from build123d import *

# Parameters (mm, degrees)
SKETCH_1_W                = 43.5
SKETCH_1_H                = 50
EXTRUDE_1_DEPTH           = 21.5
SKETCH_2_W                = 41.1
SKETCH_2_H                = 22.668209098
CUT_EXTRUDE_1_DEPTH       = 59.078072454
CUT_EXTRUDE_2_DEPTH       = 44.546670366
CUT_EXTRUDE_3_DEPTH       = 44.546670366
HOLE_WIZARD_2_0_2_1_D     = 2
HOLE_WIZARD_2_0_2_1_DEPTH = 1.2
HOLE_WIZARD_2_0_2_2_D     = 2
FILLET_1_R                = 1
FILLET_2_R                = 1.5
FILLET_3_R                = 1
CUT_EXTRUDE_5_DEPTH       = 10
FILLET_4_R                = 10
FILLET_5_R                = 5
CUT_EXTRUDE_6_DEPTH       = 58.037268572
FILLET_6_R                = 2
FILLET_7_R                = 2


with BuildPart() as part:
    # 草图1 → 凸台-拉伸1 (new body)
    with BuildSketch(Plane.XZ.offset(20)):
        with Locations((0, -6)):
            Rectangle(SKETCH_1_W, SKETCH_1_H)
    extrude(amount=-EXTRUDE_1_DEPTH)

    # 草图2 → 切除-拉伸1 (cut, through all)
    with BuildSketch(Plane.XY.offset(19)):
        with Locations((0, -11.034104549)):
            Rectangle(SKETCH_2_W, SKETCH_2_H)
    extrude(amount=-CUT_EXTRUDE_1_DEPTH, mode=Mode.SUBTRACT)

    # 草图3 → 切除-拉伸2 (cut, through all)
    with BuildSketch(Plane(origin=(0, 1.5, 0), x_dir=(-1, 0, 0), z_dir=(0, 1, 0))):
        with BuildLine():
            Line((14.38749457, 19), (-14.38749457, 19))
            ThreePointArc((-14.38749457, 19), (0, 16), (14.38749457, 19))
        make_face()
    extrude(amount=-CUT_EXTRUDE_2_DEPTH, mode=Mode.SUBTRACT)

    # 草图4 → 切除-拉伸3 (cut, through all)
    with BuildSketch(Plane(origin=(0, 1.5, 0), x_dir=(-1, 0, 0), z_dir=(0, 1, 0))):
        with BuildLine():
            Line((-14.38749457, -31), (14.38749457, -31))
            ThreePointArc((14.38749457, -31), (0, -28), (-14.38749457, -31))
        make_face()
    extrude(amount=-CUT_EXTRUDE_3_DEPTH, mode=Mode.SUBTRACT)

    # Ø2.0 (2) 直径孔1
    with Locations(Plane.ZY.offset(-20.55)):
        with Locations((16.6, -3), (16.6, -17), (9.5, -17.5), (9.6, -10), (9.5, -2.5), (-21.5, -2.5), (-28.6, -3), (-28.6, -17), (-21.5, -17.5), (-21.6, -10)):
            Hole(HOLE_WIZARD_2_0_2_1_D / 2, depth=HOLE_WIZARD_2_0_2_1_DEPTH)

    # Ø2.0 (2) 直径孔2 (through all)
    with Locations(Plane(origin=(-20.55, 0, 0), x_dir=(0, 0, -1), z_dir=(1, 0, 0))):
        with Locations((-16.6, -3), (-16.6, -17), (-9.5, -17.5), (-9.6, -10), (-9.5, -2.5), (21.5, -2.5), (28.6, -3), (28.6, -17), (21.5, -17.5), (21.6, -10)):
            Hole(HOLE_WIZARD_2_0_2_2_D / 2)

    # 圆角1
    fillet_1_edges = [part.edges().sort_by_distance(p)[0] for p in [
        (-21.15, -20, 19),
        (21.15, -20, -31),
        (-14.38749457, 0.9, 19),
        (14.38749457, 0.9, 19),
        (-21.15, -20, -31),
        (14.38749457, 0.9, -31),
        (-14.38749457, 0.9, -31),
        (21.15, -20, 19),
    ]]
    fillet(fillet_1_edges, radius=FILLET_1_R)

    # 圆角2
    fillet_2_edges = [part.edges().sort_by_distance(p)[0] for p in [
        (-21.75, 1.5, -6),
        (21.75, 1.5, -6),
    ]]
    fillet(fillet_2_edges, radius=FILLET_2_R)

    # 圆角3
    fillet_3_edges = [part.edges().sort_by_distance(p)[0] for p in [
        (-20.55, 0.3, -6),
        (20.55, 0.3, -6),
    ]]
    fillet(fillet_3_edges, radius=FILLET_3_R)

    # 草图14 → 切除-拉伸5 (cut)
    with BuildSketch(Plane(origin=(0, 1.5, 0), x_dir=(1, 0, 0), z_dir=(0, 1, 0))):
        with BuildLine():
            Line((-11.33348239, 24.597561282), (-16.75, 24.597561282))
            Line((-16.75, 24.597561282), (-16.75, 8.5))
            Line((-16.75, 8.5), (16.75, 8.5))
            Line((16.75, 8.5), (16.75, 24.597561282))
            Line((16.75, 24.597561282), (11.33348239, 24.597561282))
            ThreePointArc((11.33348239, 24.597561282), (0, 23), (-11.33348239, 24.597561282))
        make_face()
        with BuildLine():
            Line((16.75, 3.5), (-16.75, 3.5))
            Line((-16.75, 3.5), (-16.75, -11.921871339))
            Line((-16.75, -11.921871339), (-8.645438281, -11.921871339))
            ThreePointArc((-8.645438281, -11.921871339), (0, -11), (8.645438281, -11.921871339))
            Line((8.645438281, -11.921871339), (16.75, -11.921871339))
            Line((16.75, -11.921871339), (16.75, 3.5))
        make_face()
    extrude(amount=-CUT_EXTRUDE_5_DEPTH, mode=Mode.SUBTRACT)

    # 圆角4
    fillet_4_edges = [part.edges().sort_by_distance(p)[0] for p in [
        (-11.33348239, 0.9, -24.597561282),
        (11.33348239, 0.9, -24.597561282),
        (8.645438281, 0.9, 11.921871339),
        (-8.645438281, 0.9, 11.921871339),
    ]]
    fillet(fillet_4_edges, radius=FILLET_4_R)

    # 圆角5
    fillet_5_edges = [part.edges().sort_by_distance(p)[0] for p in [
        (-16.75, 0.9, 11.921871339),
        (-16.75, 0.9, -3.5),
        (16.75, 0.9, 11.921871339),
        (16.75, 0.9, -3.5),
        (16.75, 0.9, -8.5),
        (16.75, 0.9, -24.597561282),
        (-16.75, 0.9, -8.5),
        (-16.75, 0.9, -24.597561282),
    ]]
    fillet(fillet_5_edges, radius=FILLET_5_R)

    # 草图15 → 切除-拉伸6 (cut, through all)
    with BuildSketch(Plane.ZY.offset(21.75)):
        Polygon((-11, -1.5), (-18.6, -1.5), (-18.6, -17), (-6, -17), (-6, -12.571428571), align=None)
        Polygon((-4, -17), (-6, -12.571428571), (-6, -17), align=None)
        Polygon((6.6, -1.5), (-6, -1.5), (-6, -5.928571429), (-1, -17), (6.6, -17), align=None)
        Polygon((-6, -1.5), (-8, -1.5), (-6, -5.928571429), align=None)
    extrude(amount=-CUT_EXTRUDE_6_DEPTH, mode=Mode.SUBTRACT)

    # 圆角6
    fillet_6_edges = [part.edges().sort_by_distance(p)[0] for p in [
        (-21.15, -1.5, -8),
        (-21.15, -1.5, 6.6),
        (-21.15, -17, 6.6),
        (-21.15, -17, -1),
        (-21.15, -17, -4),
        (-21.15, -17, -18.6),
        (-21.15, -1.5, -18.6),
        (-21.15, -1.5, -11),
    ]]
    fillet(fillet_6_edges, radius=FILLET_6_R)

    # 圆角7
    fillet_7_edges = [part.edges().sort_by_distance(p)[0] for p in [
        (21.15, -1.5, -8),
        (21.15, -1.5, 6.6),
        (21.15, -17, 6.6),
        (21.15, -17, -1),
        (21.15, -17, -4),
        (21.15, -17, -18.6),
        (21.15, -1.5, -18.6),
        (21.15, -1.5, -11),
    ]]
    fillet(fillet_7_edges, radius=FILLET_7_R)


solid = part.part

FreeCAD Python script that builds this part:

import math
import FreeCAD as App
import Part
import Sketcher

V = App.Vector


def edges_at(feature, points):
    """Names of the edges that pass closest to the given points."""
    edges = feature.Shape.Edges
    near = lambda p: min(range(len(edges)), key=lambda i: edges[i].distToShape(Part.Vertex(*p))[0])
    return sorted({f"Edge{near(p) + 1}" for p in points})


def add_polygon(sketch, points):
    """Adds a closed chain of lines whose ends are joined by coincident constraints."""
    first, n = sketch.GeometryCount, len(points)
    for a, b in zip(points, points[1:] + points[:1]):
        sketch.addGeometry(Part.LineSegment(App.Vector(*a, 0), App.Vector(*b, 0)), False)
    for i in range(n):
        sketch.addConstraint(Sketcher.Constraint("Coincident", first + i, 2, first + (i + 1) % n, 1))

doc = App.newDocument("Part")
body = doc.addObject("PartDesign::Body", "Body")

# Sketch on XZ plane
sketch1 = body.newObject("Sketcher::SketchObject", "Sketch")
sketch1.AttachmentSupport = (doc.getObject("XZ_Plane"), [""])
sketch1.MapMode = "FlatFace"
sketch1.AttachmentOffset = App.Placement(V(0, 0, 20), App.Rotation())
add_polygon(sketch1, [(-21.75, 19), (-21.75, -31), (21.75, -31), (21.75, 19)])  # lines 0-3
sketch1.addConstraint(Sketcher.Constraint("Vertical", 0))
sketch1.addConstraint(Sketcher.Constraint("Horizontal", 1))
sketch1.addConstraint(Sketcher.Constraint("Vertical", 2))
sketch1.addConstraint(Sketcher.Constraint("Horizontal", 3))
sketch1.addConstraint(Sketcher.Constraint("DistanceY", 0, 2, 0, 1, 50.0))
sketch1.addConstraint(Sketcher.Constraint("DistanceX", 1, 1, 1, 2, 43.5))
sketch1.addConstraint(Sketcher.Constraint("DistanceY", 0, 2, -1, 1, 31.0))
sketch1.addConstraint(Sketcher.Constraint("DistanceX", 0, 2, -1, 1, 21.75))
pad1 = body.newObject("PartDesign::Pad", "Pad")
pad1.Profile = sketch1
pad1.Length = 21.5
pad1.Reversed = True

# Sketch on XY plane
sketch2 = body.newObject("Sketcher::SketchObject", "Sketch001")
sketch2.AttachmentSupport = (doc.getObject("XY_Plane"), [""])
sketch2.MapMode = "FlatFace"
sketch2.AttachmentOffset = App.Placement(V(0, 0, 19), App.Rotation())
add_polygon(sketch2, [(-20.55, 0.3), (-20.55, -22.368209), (20.55, -22.368209), (20.55, 0.3)])  # lines 0-3
sketch2.addConstraint(Sketcher.Constraint("Vertical", 0))
sketch2.addConstraint(Sketcher.Constraint("Horizontal", 1))
sketch2.addConstraint(Sketcher.Constraint("Vertical", 2))
sketch2.addConstraint(Sketcher.Constraint("Horizontal", 3))
sketch2.addConstraint(Sketcher.Constraint("DistanceX", 1, 1, 1, 2, 41.1))
sketch2.addConstraint(Sketcher.Constraint("DistanceY", -1, 1, 2, 2, 0.3))
sketch2.addConstraint(Sketcher.Constraint("DistanceX", 0, 2, -1, 1, 20.55))
sketch2.addConstraint(Sketcher.Constraint("DistanceY", 0, 2, 0, 1, 22.668209))
pocket1 = body.newObject("PartDesign::Pocket", "Pocket")
pocket1.Profile = sketch2
pocket1.Type = "ThroughAll"

# Sketch on XZ plane
sketch3 = body.newObject("Sketcher::SketchObject", "Sketch002")
sketch3.AttachmentSupport = (doc.getObject("XZ_Plane"), [""])
sketch3.MapMode = "FlatFace"
sketch3.AttachmentOffset = App.Placement(V(0, 0, -1.5), App.Rotation())
sketch3.addGeometry(Part.LineSegment(V(-14.387495, 19, 0), V(14.387495, 19, 0)), False)
sketch3.addGeometry(Part.ArcOfCircle(Part.Circle(V(0, 52, 0), V(0, 0, 1), 36), math.radians(-113.556464), math.radians(-66.443536)), False)
sketch3.addConstraint(Sketcher.Constraint("Coincident", 0, 1, 1, 1))
sketch3.addConstraint(Sketcher.Constraint("Coincident", 1, 2, 0, 2))
sketch3.addConstraint(Sketcher.Constraint("Horizontal", 0))
sketch3.addConstraint(Sketcher.Constraint("PointOnObject", 1, 3, -2))
sketch3.addConstraint(Sketcher.Constraint("Radius", 1, 36.0))
sketch3.addConstraint(Sketcher.Constraint("DistanceY", -1, 1, 1, 3, 52.0))
sketch3.addConstraint(Sketcher.Constraint("DistanceY", -1, 1, 0, 1, 19.0))
pocket2 = body.newObject("PartDesign::Pocket", "Pocket001")
pocket2.Profile = sketch3
pocket2.Type = "ThroughAll"
pocket2.Reversed = True

# Sketch on XZ plane
sketch4 = body.newObject("Sketcher::SketchObject", "Sketch003")
sketch4.AttachmentSupport = (doc.getObject("XZ_Plane"), [""])
sketch4.MapMode = "FlatFace"
sketch4.AttachmentOffset = App.Placement(V(0, 0, -1.5), App.Rotation())
sketch4.addGeometry(Part.LineSegment(V(14.387495, -31, 0), V(-14.387495, -31, 0)), False)
sketch4.addGeometry(Part.ArcOfCircle(Part.Circle(V(0, -64, 0), V(0, 0, 1), 36), math.radians(66.443536), math.radians(113.556464)), False)
sketch4.addConstraint(Sketcher.Constraint("Coincident", 0, 1, 1, 1))
sketch4.addConstraint(Sketcher.Constraint("Coincident", 1, 2, 0, 2))
sketch4.addConstraint(Sketcher.Constraint("Horizontal", 0))
sketch4.addConstraint(Sketcher.Constraint("PointOnObject", 1, 3, -2))
sketch4.addConstraint(Sketcher.Constraint("Radius", 1, 36.0))
sketch4.addConstraint(Sketcher.Constraint("DistanceY", 1, 3, -1, 1, 64.0))
sketch4.addConstraint(Sketcher.Constraint("DistanceY", 0, 1, -1, 1, 31.0))
pocket3 = body.newObject("PartDesign::Pocket", "Pocket002")
pocket3.Profile = sketch4
pocket3.Type = "ThroughAll"
pocket3.Reversed = True

# Sketch on YZ plane
sketch5 = body.newObject("Sketcher::SketchObject", "Sketch004")
sketch5.AttachmentSupport = (doc.getObject("YZ_Plane"), [""])
sketch5.MapMode = "FlatFace"
sketch5.AttachmentOffset = App.Placement(V(0, 0, 20.55), App.Rotation())
sketch5.addGeometry(Part.Circle(V(-3, 16.6, 0), V(0, 0, 1), 1), False)
sketch5.addGeometry(Part.Circle(V(-17, 16.6, 0), V(0, 0, 1), 1), False)
sketch5.addGeometry(Part.Circle(V(-17.5, 9.5, 0), V(0, 0, 1), 1), False)
sketch5.addGeometry(Part.Circle(V(-10, 9.6, 0), V(0, 0, 1), 1), False)
sketch5.addGeometry(Part.Circle(V(-2.5, 9.5, 0), V(0, 0, 1), 1), False)
sketch5.addGeometry(Part.Circle(V(-2.5, -21.5, 0), V(0, 0, 1), 1), False)
sketch5.addGeometry(Part.Circle(V(-3, -28.6, 0), V(0, 0, 1), 1), False)
sketch5.addGeometry(Part.Circle(V(-17, -28.6, 0), V(0, 0, 1), 1), False)
sketch5.addGeometry(Part.Circle(V(-17.5, -21.5, 0), V(0, 0, 1), 1), False)
sketch5.addGeometry(Part.Circle(V(-10, -21.6, 0), V(0, 0, 1), 1), False)
sketch5.addConstraint(Sketcher.Constraint("Equal", 0, 1))
sketch5.addConstraint(Sketcher.Constraint("Equal", 1, 2))
sketch5.addConstraint(Sketcher.Constraint("Equal", 2, 3))
sketch5.addConstraint(Sketcher.Constraint("Equal", 3, 4))
sketch5.addConstraint(Sketcher.Constraint("Equal", 4, 5))
sketch5.addConstraint(Sketcher.Constraint("Equal", 5, 6))
sketch5.addConstraint(Sketcher.Constraint("Equal", 6, 7))
sketch5.addConstraint(Sketcher.Constraint("Equal", 7, 8))
sketch5.addConstraint(Sketcher.Constraint("Equal", 8, 9))
sketch5.addConstraint(Sketcher.Constraint("Horizontal", 0, 3, 1, 3))
sketch5.addConstraint(Sketcher.Constraint("Horizontal", 2, 3, 4, 3))
sketch5.addConstraint(Sketcher.Constraint("Horizontal", 6, 3, 7, 3))
sketch5.addConstraint(Sketcher.Constraint("Horizontal", 5, 3, 8, 3))
sketch5.addConstraint(Sketcher.Constraint("Vertical", 4, 3, 5, 3))
sketch5.addConstraint(Sketcher.Constraint("Vertical", 0, 3, 6, 3))
sketch5.addConstraint(Sketcher.Constraint("Vertical", 1, 3, 7, 3))
sketch5.addConstraint(Sketcher.Constraint("Vertical", 2, 3, 8, 3))
sketch5.addConstraint(Sketcher.Constraint("Vertical", 3, 3, 9, 3))
sketch5.addConstraint(Sketcher.Constraint("Diameter", 0, 2.0))
sketch5.addConstraint(Sketcher.Constraint("DistanceX", 0, 3, -1, 1, 3.0))
sketch5.addConstraint(Sketcher.Constraint("DistanceX", 1, 3, -1, 1, 17.0))
sketch5.addConstraint(Sketcher.Constraint("DistanceX", 3, 3, -1, 1, 10.0))
sketch5.addConstraint(Sketcher.Constraint("DistanceY", 3, 3, 0, 3, 7.0))
sketch5.addConstraint(Sketcher.Constraint("DistanceX", 2, 3, 4, 3, 15.0))
sketch5.addConstraint(Sketcher.Constraint("DistanceY", 5, 3, 4, 3, 31.0))
sketch5.addConstraint(Sketcher.Constraint("DistanceY", 6, 3, 9, 3, 7.0))
sketch5.addConstraint(Sketcher.Constraint("DistanceY", -1, 1, 0, 3, 16.6))
sketch5.addConstraint(Sketcher.Constraint("DistanceX", 2, 3, -1, 1, 17.5))
sketch5.addConstraint(Sketcher.Constraint("DistanceY", -1, 1, 2, 3, 9.5))
sketch5.addConstraint(Sketcher.Constraint("DistanceY", 6, 3, -1, 1, 28.6))
doc.recompute()
hole = body.newObject("PartDesign::Hole", "Hole")
hole.Profile = sketch5
hole.ThreadType = "None"
hole.Diameter = 2
hole.DepthType = "Dimension"
hole.Depth = 1.2
hole.DrillPoint = "Flat"
hole.Reversed = True

# Sketch on YZ plane
sketch6 = body.newObject("Sketcher::SketchObject", "Sketch005")
sketch6.AttachmentSupport = (doc.getObject("YZ_Plane"), [""])
sketch6.MapMode = "FlatFace"
sketch6.AttachmentOffset = App.Placement(V(0, 0, -20.55), App.Rotation())
sketch6.addGeometry(Part.Circle(V(-3, 16.6, 0), V(0, 0, 1), 1), False)
sketch6.addGeometry(Part.Circle(V(-17, 16.6, 0), V(0, 0, 1), 1), False)
sketch6.addGeometry(Part.Circle(V(-17.5, 9.5, 0), V(0, 0, 1), 1), False)
sketch6.addGeometry(Part.Circle(V(-10, 9.6, 0), V(0, 0, 1), 1), False)
sketch6.addGeometry(Part.Circle(V(-2.5, 9.5, 0), V(0, 0, 1), 1), False)
sketch6.addGeometry(Part.Circle(V(-2.5, -21.5, 0), V(0, 0, 1), 1), False)
sketch6.addGeometry(Part.Circle(V(-3, -28.6, 0), V(0, 0, 1), 1), False)
sketch6.addGeometry(Part.Circle(V(-17, -28.6, 0), V(0, 0, 1), 1), False)
sketch6.addGeometry(Part.Circle(V(-17.5, -21.5, 0), V(0, 0, 1), 1), False)
sketch6.addGeometry(Part.Circle(V(-10, -21.6, 0), V(0, 0, 1), 1), False)
sketch6.addConstraint(Sketcher.Constraint("Equal", 0, 1))
sketch6.addConstraint(Sketcher.Constraint("Equal", 1, 2))
sketch6.addConstraint(Sketcher.Constraint("Equal", 2, 3))
sketch6.addConstraint(Sketcher.Constraint("Equal", 3, 4))
sketch6.addConstraint(Sketcher.Constraint("Equal", 4, 5))
sketch6.addConstraint(Sketcher.Constraint("Equal", 5, 6))
sketch6.addConstraint(Sketcher.Constraint("Equal", 6, 7))
sketch6.addConstraint(Sketcher.Constraint("Equal", 7, 8))
sketch6.addConstraint(Sketcher.Constraint("Equal", 8, 9))
sketch6.addConstraint(Sketcher.Constraint("Horizontal", 0, 3, 1, 3))
sketch6.addConstraint(Sketcher.Constraint("Horizontal", 2, 3, 4, 3))
sketch6.addConstraint(Sketcher.Constraint("Horizontal", 6, 3, 7, 3))
sketch6.addConstraint(Sketcher.Constraint("Horizontal", 5, 3, 8, 3))
sketch6.addConstraint(Sketcher.Constraint("Vertical", 4, 3, 5, 3))
sketch6.addConstraint(Sketcher.Constraint("Vertical", 0, 3, 6, 3))
sketch6.addConstraint(Sketcher.Constraint("Vertical", 1, 3, 7, 3))
sketch6.addConstraint(Sketcher.Constraint("Vertical", 2, 3, 8, 3))
sketch6.addConstraint(Sketcher.Constraint("Vertical", 3, 3, 9, 3))
sketch6.addConstraint(Sketcher.Constraint("Diameter", 0, 2.0))
sketch6.addConstraint(Sketcher.Constraint("DistanceX", 0, 3, -1, 1, 3.0))
sketch6.addConstraint(Sketcher.Constraint("DistanceX", 1, 3, -1, 1, 17.0))
sketch6.addConstraint(Sketcher.Constraint("DistanceX", 3, 3, -1, 1, 10.0))
sketch6.addConstraint(Sketcher.Constraint("DistanceY", 3, 3, 0, 3, 7.0))
sketch6.addConstraint(Sketcher.Constraint("DistanceX", 2, 3, 4, 3, 15.0))
sketch6.addConstraint(Sketcher.Constraint("DistanceY", 5, 3, 4, 3, 31.0))
sketch6.addConstraint(Sketcher.Constraint("DistanceY", 6, 3, 9, 3, 7.0))
sketch6.addConstraint(Sketcher.Constraint("DistanceY", -1, 1, 0, 3, 16.6))
sketch6.addConstraint(Sketcher.Constraint("DistanceX", 2, 3, -1, 1, 17.5))
sketch6.addConstraint(Sketcher.Constraint("DistanceY", -1, 1, 2, 3, 9.5))
sketch6.addConstraint(Sketcher.Constraint("DistanceY", 6, 3, -1, 1, 28.6))
doc.recompute()
hole2 = body.newObject("PartDesign::Hole", "Hole001")
hole2.Profile = sketch6
hole2.ThreadType = "None"
hole2.Diameter = 2
hole2.DepthType = "ThroughAll"
doc.recompute()

fillet = body.newObject("PartDesign::Fillet", "Fillet")
fillet.Base = (hole2, edges_at(hole2, [
    (-21.15, -20, 19),
    (21.15, -20, -31),
    (-14.387, 0.9, 19),
    (14.387, 0.9, 19),
    (-21.15, -20, -31),
    (14.387, 0.9, -31),
    (-14.387, 0.9, -31),
    (21.15, -20, 19),
]))
fillet.Radius = 1
doc.recompute()

fillet2 = body.newObject("PartDesign::Fillet", "Fillet001")
fillet2.Base = (fillet, edges_at(fillet, [(-21.75, 1.5, -6), (21.75, 1.5, -6)]))
fillet2.Radius = 1.5
doc.recompute()

fillet3 = body.newObject("PartDesign::Fillet", "Fillet002")
fillet3.Base = (fillet2, edges_at(fillet2, [(-20.55, 0.3, -6), (20.55, 0.3, -6)]))
fillet3.Radius = 1

# Sketch on XZ plane
sketch7 = body.newObject("Sketcher::SketchObject", "Sketch006")
sketch7.AttachmentSupport = (doc.getObject("XZ_Plane"), [""])
sketch7.MapMode = "FlatFace"
sketch7.AttachmentOffset = App.Placement(V(0, 0, -1.5), App.Rotation())
sketch7.addGeometry(Part.LineSegment(V(-11.333482, -24.597561, 0), V(-16.75, -24.597561, 0)), False)
sketch7.addGeometry(Part.LineSegment(V(-16.75, -24.597561, 0), V(-16.75, -8.5, 0)), False)
sketch7.addGeometry(Part.LineSegment(V(-16.75, -8.5, 0), V(16.75, -8.5, 0)), False)
sketch7.addGeometry(Part.LineSegment(V(16.75, -8.5, 0), V(16.75, -24.597561, 0)), False)
sketch7.addGeometry(Part.LineSegment(V(16.75, -24.597561, 0), V(11.333482, -24.597561, 0)), False)
sketch7.addGeometry(Part.ArcOfCircle(Part.Circle(V(0, -64, 0), V(0, 0, 1), 41), math.radians(73.952964), math.radians(106.047036)), False)
sketch7.addGeometry(Part.LineSegment(V(16.75, -3.5, 0), V(-16.75, -3.5, 0)), False)
sketch7.addGeometry(Part.LineSegment(V(-16.75, -3.5, 0), V(-16.75, 11.921871, 0)), False)
sketch7.addGeometry(Part.LineSegment(V(-16.75, 11.921871, 0), V(-8.645438, 11.921871, 0)), False)
sketch7.addGeometry(Part.ArcOfCircle(Part.Circle(V(0, 52, 0), V(0, 0, 1), 41), math.radians(-102.17301), math.radians(-77.82699)), False)
sketch7.addGeometry(Part.LineSegment(V(8.645438, 11.921871, 0), V(16.75, 11.921871, 0)), False)
sketch7.addGeometry(Part.LineSegment(V(16.75, 11.921871, 0), V(16.75, -3.5, 0)), False)
sketch7.addConstraint(Sketcher.Constraint("Coincident", 0, 2, 1, 1))
sketch7.addConstraint(Sketcher.Constraint("Coincident", 1, 2, 2, 1))
sketch7.addConstraint(Sketcher.Constraint("Coincident", 2, 2, 3, 1))
sketch7.addConstraint(Sketcher.Constraint("Coincident", 3, 2, 4, 1))
sketch7.addConstraint(Sketcher.Constraint("Coincident", 4, 2, 5, 1))
sketch7.addConstraint(Sketcher.Constraint("Coincident", 5, 2, 0, 1))
sketch7.addConstraint(Sketcher.Constraint("Coincident", 6, 2, 7, 1))
sketch7.addConstraint(Sketcher.Constraint("Coincident", 7, 2, 8, 1))
sketch7.addConstraint(Sketcher.Constraint("Coincident", 8, 2, 9, 1))
sketch7.addConstraint(Sketcher.Constraint("Coincident", 9, 2, 10, 1))
sketch7.addConstraint(Sketcher.Constraint("Coincident", 10, 2, 11, 1))
sketch7.addConstraint(Sketcher.Constraint("Coincident", 11, 2, 6, 1))
sketch7.addConstraint(Sketcher.Constraint("Horizontal", 0))
sketch7.addConstraint(Sketcher.Constraint("Vertical", 1))
sketch7.addConstraint(Sketcher.Constraint("Horizontal", 2))
sketch7.addConstraint(Sketcher.Constraint("Vertical", 3))
sketch7.addConstraint(Sketcher.Constraint("Horizontal", 4))
sketch7.addConstraint(Sketcher.Constraint("Horizontal", 6))
sketch7.addConstraint(Sketcher.Constraint("Vertical", 7))
sketch7.addConstraint(Sketcher.Constraint("Horizontal", 8))
sketch7.addConstraint(Sketcher.Constraint("Horizontal", 10))
sketch7.addConstraint(Sketcher.Constraint("Vertical", 11))
sketch7.addConstraint(Sketcher.Constraint("Equal", 5, 9))
sketch7.addConstraint(Sketcher.Constraint("Symmetric", 0, 2, 3, 2, -2))
sketch7.addConstraint(Sketcher.Constraint("Symmetric", 8, 2, 9, 2, -2))
sketch7.addConstraint(Sketcher.Constraint("PointOnObject", 5, 3, -2))
sketch7.addConstraint(Sketcher.Constraint("Vertical", 1, 2, 6, 2))
sketch7.addConstraint(Sketcher.Constraint("Vertical", 3, 2, 10, 2))
sketch7.addConstraint(Sketcher.Constraint("Radius", 5, 41.0))
sketch7.addConstraint(Sketcher.Constraint("DistanceX", 2, 1, 2, 2, 33.5))
sketch7.addConstraint(Sketcher.Constraint("DistanceY", 5, 3, -1, 1, 64.0))
sketch7.addConstraint(Sketcher.Constraint("DistanceY", -1, 1, 9, 3, 52.0))
sketch7.addConstraint(Sketcher.Constraint("DistanceY", 1, 2, 6, 2, 5.0))
sketch7.addConstraint(Sketcher.Constraint("DistanceY", 1, 2, -1, 1, 8.5))
sketch7.addConstraint(Sketcher.Constraint("DistanceX", 8, 1, 8, 2, 8.104562))
sketch7.addConstraint(Sketcher.Constraint("DistanceY", 1, 1, 1, 2, 16.097561))
pocket4 = body.newObject("PartDesign::Pocket", "Pocket003")
pocket4.Profile = sketch7
pocket4.Length = 10
pocket4.Reversed = True
doc.recompute()

fillet4 = body.newObject("PartDesign::Fillet", "Fillet003")
fillet4.Base = (pocket4, edges_at(pocket4, [
    (-11.333, 0.9, -24.598),
    (11.333, 0.9, -24.598),
    (8.645, 0.9, 11.922),
    (-8.645, 0.9, 11.922),
]))
fillet4.Radius = 10
doc.recompute()

fillet5 = body.newObject("PartDesign::Fillet", "Fillet004")
fillet5.Base = (fillet4, edges_at(fillet4, [
    (-16.75, 0.9, 11.922),
    (-16.75, 0.9, -3.5),
    (16.75, 0.9, 11.922),
    (16.75, 0.9, -3.5),
    (16.75, 0.9, -8.5),
    (16.75, 0.9, -24.598),
    (-16.75, 0.9, -8.5),
    (-16.75, 0.9, -24.598),
]))
fillet5.Radius = 5

# Sketch on YZ plane
sketch8 = body.newObject("Sketcher::SketchObject", "Sketch007")
sketch8.AttachmentSupport = (doc.getObject("YZ_Plane"), [""])
sketch8.MapMode = "FlatFace"
sketch8.AttachmentOffset = App.Placement(V(0, 0, -21.75), App.Rotation())
add_polygon(sketch8, [(-1.5, -11), (-1.5, -18.6), (-17, -18.6), (-17, -4), (-12.571429, -6)])  # lines 0-4
add_polygon(sketch8, [(-1.5, 6.6), (-1.5, -8), (-5.928571, -6), (-17, -1), (-17, 6.6)])  # lines 5-9
sketch8.addConstraint(Sketcher.Constraint("Vertical", 0))
sketch8.addConstraint(Sketcher.Constraint("Horizontal", 1))
sketch8.addConstraint(Sketcher.Constraint("Vertical", 2))
sketch8.addConstraint(Sketcher.Constraint("Vertical", 5))
sketch8.addConstraint(Sketcher.Constraint("Vertical", 8))
sketch8.addConstraint(Sketcher.Constraint("Horizontal", 9))
sketch8.addConstraint(Sketcher.Constraint("Parallel", 3, 4))
sketch8.addConstraint(Sketcher.Constraint("Parallel", 4, 6))
sketch8.addConstraint(Sketcher.Constraint("Parallel", 6, 7))
sketch8.addConstraint(Sketcher.Constraint("Horizontal", 3, 2, 6, 2))
sketch8.addConstraint(Sketcher.Constraint("Vertical", 4, 2, 5, 2))
sketch8.addConstraint(Sketcher.Constraint("Vertical", 2, 2, 7, 2))
sketch8.addConstraint(Sketcher.Constraint("Equal", 2, 5))
sketch8.addConstraint(Sketcher.Constraint("Equal", 3, 6))
sketch8.addConstraint(Sketcher.Constraint("DistanceX", 1, 2, 1, 1, 15.5))
sketch8.addConstraint(Sketcher.Constraint("DistanceY", 0, 2, 0, 1, 7.6))
sketch8.addConstraint(Sketcher.Constraint("DistanceY", 2, 1, 2, 2, 14.6))
sketch8.addConstraint(Sketcher.Constraint("DistanceX", 1, 2, -1, 1, 17.0))
sketch8.addConstraint(Sketcher.Constraint("DistanceY", 2, 2, -1, 1, 4.0))
sketch8.addConstraint(Sketcher.Constraint("DistanceY", 3, 2, -1, 1, 6.0))
pocket5 = body.newObject("PartDesign::Pocket", "Pocket004")
pocket5.Profile = sketch8
pocket5.Type = "ThroughAll"
pocket5.Reversed = True
doc.recompute()

fillet6 = body.newObject("PartDesign::Fillet", "Fillet005")
fillet6.Base = (pocket5, edges_at(pocket5, [
    (-21.15, -1.5, -8),
    (-21.15, -1.5, 6.6),
    (-21.15, -17, 6.6),
    (-21.15, -17, -1),
    (-21.15, -17, -4),
    (-21.15, -17, -18.6),
    (-21.15, -1.5, -18.6),
    (-21.15, -1.5, -11),
]))
fillet6.Radius = 2
doc.recompute()

fillet7 = body.newObject("PartDesign::Fillet", "Fillet006")
fillet7.Base = (fillet6, edges_at(fillet6, [
    (21.15, -1.5, -8),
    (21.15, -1.5, 6.6),
    (21.15, -17, 6.6),
    (21.15, -17, -1),
    (21.15, -17, -4),
    (21.15, -17, -18.6),
    (21.15, -1.5, -18.6),
    (21.15, -1.5, -11),
]))
fillet7.Radius = 2

doc.recompute()
